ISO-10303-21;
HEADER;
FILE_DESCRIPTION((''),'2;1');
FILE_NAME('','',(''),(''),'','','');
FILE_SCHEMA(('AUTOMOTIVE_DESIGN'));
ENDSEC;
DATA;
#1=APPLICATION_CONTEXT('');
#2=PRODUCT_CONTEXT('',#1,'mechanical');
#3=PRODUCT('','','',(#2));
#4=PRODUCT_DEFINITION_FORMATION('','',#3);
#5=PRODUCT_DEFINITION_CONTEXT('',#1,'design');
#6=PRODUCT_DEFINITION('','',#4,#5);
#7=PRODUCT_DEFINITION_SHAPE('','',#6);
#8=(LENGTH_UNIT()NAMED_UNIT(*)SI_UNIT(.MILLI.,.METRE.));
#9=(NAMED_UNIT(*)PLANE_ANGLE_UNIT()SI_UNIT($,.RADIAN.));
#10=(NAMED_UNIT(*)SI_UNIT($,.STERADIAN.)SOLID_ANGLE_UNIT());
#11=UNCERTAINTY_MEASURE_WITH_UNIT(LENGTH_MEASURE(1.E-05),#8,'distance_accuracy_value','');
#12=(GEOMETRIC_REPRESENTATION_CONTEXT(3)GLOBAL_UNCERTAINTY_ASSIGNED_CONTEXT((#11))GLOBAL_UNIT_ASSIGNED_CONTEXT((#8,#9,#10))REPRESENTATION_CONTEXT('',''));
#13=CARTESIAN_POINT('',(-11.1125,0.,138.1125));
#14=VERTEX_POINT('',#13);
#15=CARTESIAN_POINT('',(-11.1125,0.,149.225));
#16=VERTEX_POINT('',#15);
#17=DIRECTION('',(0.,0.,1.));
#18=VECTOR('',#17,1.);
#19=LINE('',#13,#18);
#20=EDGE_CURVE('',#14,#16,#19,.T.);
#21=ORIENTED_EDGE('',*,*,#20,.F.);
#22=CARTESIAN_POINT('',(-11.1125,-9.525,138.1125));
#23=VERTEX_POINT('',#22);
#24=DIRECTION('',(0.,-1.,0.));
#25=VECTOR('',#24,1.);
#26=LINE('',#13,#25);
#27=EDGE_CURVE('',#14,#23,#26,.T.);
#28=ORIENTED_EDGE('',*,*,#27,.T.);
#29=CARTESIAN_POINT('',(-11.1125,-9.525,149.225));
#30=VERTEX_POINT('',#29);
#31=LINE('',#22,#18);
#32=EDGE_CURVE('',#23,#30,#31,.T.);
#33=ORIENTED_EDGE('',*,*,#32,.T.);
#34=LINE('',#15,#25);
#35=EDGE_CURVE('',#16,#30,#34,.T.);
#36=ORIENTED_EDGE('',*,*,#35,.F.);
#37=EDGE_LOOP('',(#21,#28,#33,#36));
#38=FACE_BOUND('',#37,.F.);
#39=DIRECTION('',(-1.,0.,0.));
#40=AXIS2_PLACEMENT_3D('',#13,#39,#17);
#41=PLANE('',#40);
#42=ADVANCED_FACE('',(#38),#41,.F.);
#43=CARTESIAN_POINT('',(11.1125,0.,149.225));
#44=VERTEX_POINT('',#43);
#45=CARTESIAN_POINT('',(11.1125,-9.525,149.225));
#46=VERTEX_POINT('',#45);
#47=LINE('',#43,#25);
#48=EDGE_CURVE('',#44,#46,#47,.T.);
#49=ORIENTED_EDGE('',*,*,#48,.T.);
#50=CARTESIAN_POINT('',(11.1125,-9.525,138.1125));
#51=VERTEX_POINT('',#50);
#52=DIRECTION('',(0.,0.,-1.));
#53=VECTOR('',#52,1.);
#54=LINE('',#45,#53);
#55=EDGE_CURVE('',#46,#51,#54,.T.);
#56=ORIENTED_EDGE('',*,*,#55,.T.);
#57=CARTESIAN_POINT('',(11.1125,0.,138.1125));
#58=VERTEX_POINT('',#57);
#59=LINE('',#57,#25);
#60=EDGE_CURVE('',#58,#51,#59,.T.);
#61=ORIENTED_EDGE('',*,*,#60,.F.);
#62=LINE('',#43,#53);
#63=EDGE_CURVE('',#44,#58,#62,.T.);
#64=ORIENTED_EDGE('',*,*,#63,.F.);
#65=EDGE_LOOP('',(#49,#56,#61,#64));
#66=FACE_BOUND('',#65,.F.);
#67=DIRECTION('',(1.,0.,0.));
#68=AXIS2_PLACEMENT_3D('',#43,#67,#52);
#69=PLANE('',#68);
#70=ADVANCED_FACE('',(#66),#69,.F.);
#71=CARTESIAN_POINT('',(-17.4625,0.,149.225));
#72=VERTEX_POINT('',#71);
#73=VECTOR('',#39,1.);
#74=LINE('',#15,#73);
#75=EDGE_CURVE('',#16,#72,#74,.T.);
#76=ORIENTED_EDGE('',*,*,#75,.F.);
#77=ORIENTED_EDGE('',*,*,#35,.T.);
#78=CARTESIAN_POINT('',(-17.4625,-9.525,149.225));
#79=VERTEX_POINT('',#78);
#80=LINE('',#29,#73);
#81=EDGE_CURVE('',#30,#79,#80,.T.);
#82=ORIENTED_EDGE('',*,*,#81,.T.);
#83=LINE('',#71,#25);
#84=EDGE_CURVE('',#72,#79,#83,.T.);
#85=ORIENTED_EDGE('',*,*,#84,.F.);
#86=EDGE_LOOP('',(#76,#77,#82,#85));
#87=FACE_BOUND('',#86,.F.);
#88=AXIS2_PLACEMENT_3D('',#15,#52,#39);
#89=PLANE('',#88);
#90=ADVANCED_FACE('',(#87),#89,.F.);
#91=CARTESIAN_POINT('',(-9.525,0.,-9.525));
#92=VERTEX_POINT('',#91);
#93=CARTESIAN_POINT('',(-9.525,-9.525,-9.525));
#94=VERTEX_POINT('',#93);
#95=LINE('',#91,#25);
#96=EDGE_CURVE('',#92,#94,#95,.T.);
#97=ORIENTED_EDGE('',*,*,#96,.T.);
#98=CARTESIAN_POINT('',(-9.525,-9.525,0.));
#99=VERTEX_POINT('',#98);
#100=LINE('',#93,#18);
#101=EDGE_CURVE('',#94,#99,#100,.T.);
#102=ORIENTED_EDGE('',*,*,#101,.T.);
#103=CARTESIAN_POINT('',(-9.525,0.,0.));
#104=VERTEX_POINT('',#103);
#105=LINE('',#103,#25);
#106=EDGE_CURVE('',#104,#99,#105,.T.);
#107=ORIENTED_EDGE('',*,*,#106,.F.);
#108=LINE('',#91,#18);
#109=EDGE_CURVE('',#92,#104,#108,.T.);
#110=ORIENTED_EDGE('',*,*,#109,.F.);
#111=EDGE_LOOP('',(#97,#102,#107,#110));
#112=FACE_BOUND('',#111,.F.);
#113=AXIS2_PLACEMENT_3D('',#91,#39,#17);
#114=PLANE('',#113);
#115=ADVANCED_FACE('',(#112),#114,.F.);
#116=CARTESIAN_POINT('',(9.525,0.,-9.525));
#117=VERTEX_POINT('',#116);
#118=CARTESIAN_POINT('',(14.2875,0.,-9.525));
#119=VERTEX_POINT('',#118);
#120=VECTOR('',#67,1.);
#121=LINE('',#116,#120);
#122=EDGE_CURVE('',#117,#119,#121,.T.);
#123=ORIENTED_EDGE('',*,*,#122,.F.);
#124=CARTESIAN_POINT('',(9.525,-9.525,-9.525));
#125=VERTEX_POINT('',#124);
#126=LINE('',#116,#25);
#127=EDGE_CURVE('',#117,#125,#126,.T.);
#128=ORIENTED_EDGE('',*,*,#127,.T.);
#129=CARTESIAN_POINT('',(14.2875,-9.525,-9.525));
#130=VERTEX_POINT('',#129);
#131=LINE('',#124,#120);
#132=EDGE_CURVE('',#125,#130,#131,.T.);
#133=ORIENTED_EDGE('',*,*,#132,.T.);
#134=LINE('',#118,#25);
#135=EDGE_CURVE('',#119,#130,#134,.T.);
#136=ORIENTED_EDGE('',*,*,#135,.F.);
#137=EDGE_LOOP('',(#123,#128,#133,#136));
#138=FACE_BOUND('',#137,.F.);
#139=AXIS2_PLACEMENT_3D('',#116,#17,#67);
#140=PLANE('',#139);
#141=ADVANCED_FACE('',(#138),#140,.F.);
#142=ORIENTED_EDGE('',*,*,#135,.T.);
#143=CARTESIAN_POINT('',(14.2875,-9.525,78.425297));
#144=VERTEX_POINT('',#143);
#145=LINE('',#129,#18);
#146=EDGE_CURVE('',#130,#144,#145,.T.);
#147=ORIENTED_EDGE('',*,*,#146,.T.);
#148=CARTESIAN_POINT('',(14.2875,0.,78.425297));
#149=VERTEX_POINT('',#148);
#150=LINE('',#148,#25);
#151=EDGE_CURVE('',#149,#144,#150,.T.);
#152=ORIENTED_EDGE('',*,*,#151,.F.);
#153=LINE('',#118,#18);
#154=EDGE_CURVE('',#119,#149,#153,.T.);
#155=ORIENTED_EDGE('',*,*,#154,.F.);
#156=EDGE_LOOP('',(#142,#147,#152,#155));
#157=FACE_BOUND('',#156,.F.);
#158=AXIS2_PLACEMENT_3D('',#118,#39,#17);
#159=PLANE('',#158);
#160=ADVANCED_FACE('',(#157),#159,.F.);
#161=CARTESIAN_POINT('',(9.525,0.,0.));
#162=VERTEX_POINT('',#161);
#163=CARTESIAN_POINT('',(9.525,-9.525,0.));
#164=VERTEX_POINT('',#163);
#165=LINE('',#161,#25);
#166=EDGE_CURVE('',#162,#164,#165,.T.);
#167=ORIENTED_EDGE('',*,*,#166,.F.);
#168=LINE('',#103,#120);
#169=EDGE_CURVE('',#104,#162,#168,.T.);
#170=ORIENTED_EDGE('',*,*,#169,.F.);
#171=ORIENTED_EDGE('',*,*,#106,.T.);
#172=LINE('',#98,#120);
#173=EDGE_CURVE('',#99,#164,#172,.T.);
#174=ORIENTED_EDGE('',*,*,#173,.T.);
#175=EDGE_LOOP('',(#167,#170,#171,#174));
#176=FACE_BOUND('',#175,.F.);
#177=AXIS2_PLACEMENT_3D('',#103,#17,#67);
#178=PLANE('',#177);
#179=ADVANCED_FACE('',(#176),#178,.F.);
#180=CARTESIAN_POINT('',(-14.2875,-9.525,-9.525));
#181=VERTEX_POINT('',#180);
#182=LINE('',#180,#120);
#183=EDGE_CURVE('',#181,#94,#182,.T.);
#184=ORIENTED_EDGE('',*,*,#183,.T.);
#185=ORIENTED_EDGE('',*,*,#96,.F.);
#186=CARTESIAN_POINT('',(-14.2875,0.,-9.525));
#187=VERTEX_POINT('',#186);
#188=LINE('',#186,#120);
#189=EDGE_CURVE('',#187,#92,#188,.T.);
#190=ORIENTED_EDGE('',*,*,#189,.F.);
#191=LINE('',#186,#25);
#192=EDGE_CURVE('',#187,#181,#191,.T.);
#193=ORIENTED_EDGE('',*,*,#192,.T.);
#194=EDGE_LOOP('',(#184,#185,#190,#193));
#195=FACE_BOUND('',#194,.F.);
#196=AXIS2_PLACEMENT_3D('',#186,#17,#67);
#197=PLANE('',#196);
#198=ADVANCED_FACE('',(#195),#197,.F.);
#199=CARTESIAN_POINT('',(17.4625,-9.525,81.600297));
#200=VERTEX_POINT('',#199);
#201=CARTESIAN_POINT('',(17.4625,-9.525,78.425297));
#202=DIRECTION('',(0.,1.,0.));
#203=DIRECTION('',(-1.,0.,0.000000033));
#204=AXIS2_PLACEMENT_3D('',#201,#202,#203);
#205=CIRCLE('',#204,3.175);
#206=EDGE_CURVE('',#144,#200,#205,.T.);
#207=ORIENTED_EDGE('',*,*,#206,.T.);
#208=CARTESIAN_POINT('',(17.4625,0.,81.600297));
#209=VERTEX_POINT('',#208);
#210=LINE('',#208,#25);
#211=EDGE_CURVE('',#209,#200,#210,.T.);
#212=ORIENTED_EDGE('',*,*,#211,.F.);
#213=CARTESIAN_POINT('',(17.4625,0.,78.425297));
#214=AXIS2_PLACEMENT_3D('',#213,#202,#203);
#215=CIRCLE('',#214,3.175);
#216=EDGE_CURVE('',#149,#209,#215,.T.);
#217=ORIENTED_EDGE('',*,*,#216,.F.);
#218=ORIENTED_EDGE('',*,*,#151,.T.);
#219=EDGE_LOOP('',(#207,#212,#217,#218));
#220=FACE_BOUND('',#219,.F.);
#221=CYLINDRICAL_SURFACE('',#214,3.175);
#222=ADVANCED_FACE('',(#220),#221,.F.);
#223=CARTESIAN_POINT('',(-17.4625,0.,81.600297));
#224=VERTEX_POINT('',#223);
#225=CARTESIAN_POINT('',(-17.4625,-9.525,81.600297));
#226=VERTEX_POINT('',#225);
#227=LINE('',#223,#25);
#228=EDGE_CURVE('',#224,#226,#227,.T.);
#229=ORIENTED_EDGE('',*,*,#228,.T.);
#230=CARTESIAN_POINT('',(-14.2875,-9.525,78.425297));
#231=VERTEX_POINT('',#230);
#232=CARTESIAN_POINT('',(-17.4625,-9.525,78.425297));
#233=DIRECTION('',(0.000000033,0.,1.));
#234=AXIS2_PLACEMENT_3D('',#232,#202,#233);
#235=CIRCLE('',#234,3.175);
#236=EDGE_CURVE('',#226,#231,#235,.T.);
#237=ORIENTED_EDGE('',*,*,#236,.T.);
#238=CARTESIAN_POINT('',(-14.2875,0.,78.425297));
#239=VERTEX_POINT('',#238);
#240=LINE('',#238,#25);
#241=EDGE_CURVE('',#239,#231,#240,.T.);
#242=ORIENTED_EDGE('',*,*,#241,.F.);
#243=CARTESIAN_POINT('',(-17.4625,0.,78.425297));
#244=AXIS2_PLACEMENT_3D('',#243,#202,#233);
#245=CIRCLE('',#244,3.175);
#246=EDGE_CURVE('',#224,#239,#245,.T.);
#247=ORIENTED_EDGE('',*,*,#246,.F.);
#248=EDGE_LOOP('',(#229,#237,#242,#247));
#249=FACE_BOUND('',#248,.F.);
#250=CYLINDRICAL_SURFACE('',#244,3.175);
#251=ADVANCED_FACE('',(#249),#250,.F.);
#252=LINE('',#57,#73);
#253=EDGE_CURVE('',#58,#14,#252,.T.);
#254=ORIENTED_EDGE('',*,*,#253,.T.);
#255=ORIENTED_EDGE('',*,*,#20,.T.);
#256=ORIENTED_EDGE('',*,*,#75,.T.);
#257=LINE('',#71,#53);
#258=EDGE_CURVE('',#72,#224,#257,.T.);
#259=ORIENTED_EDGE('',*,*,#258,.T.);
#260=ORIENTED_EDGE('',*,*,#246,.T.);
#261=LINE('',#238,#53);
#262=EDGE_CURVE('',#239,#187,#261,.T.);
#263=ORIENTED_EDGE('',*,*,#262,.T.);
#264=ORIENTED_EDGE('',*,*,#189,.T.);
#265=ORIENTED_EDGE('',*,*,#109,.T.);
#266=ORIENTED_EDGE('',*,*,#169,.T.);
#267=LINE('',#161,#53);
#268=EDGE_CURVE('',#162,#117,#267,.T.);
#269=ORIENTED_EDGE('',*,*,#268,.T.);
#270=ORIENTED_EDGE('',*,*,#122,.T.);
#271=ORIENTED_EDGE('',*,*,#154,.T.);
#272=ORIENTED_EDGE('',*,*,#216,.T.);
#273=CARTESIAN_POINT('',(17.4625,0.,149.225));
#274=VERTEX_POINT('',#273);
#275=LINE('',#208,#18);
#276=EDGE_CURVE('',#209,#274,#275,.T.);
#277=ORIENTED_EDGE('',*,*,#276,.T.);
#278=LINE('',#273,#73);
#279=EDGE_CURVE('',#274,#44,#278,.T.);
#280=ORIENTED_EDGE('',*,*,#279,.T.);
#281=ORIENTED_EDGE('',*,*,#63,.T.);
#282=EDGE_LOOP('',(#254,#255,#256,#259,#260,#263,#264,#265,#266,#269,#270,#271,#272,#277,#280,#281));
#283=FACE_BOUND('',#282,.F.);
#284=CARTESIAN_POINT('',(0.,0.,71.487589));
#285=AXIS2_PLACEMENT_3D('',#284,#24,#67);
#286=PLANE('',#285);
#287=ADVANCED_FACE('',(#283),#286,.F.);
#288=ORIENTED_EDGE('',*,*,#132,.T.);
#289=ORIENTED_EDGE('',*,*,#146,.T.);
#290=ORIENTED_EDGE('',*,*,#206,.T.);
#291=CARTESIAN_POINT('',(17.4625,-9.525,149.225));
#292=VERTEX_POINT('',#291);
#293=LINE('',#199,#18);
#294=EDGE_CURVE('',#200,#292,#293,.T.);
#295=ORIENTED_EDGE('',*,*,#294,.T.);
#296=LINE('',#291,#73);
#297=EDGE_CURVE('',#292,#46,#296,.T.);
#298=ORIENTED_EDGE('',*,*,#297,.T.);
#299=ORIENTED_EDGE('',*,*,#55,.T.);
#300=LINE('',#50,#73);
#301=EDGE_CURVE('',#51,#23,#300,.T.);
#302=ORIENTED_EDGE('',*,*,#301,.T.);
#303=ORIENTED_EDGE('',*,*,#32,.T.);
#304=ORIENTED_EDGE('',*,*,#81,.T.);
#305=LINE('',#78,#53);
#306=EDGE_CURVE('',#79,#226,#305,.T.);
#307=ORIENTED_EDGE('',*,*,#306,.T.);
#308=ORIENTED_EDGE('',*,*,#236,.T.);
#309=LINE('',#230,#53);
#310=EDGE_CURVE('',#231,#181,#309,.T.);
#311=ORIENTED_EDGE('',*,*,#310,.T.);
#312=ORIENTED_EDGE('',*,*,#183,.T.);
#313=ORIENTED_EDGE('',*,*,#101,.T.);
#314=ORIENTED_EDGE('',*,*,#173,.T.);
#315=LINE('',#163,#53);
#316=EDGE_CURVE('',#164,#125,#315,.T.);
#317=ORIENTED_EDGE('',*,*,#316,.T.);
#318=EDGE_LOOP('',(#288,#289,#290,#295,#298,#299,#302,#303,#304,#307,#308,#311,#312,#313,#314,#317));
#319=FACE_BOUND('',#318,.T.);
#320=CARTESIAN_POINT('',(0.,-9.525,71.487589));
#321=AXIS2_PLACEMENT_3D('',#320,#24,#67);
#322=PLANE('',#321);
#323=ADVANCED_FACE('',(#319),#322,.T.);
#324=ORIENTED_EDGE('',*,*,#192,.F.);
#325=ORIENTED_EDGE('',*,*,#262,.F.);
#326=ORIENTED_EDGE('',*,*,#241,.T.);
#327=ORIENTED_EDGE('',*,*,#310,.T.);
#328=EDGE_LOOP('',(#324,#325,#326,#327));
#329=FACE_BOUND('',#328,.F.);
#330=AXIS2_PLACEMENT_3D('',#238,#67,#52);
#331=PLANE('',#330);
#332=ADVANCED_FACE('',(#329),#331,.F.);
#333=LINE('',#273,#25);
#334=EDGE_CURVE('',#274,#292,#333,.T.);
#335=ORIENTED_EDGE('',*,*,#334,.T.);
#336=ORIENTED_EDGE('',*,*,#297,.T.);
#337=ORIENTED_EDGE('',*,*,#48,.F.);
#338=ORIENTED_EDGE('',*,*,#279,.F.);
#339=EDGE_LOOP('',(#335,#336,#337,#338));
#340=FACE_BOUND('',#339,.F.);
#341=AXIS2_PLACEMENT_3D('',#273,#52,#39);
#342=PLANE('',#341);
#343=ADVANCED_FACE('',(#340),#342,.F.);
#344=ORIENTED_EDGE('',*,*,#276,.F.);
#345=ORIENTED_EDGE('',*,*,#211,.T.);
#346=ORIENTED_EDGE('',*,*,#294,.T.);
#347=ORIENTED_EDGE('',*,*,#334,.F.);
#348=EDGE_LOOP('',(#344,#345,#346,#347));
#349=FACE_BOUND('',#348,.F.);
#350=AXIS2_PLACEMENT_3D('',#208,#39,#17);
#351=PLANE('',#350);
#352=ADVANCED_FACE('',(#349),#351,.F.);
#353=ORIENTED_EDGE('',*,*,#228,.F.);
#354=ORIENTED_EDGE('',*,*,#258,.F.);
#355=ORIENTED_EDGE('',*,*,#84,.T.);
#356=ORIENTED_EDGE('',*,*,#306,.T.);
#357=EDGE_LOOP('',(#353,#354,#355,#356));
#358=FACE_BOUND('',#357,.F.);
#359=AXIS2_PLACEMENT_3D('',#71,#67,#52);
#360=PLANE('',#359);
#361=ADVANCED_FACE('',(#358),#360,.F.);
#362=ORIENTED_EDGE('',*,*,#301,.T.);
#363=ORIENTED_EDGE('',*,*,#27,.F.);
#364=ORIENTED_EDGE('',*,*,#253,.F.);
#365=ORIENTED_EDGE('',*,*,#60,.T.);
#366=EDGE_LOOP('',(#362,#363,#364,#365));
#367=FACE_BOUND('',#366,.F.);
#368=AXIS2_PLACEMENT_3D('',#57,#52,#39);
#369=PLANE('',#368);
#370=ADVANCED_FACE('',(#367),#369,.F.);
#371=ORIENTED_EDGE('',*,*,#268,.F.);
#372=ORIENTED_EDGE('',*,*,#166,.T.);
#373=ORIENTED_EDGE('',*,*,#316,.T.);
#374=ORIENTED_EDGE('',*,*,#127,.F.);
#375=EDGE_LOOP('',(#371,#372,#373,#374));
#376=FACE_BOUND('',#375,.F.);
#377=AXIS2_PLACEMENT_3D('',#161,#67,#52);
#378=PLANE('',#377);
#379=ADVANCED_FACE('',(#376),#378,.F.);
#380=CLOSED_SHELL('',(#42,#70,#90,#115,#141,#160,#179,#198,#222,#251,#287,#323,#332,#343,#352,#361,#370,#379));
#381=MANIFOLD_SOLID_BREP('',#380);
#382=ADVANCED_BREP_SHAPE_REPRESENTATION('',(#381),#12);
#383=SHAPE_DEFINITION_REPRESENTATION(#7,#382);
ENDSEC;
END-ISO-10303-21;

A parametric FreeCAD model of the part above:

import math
import FreeCAD as App
import Part
import Sketcher

V = App.Vector
Q = App.Units.Quantity

doc = App.newDocument("Part")
body = doc.addObject("PartDesign::Body", "Body")

sketch1 = body.newObject("Sketcher::SketchObject", "Sketch")
sketch1.AttachmentSupport = (doc.getObject("XZ_Plane"), [""])
sketch1.MapMode = "FlatFace"
sketch1.addGeometry([
    Part.LineSegment(V(-9.5, 0, 0), V(9.5, 0, 0)),
    Part.LineSegment(V(9.5, 0, 0), V(9.5, -9.5, 0)),
    Part.LineSegment(V(9.5, -9.5, 0), V(14.3, -9.5, 0)),
    Part.LineSegment(V(14.3, -9.5, 0), V(14.3, 78.4, 0)),
    Part.ArcOfCircle(Part.Circle(V(17.5, 78.4, 0), V(0, 0, 1), 3.2), math.radians(90), math.radians(180)),
    Part.LineSegment(V(17.5, 81.6, 0), V(17.5, 149.2, 0)),
    Part.LineSegment(V(17.5, 149.2, 0), V(11.1, 149.2, 0)),
    Part.LineSegment(V(11.1, 149.2, 0), V(11.1, 138.1, 0)),
    Part.LineSegment(V(11.1, 138.1, 0), V(-11.1, 138.1, 0)),
    Part.LineSegment(V(-11.1, 138.1, 0), V(-11.1, 149.2, 0)),
    Part.LineSegment(V(-11.1, 149.2, 0), V(-17.5, 149.2, 0)),
    Part.LineSegment(V(-17.5, 149.2, 0), V(-17.5, 81.6, 0)),
    Part.ArcOfCircle(Part.Circle(V(-17.5, 78.4, 0), V(0, 0, 1), 3.2), math.radians(0), math.radians(90)),
    Part.LineSegment(V(-14.3, 78.4, 0), V(-14.3, -9.5, 0)),
    Part.LineSegment(V(-14.3, -9.5, 0), V(-9.5, -9.5, 0)),
    Part.LineSegment(V(-9.5, -9.5, 0), V(-9.5, 0, 0)),
], False)
sketch1.addConstraint([
    Sketcher.Constraint("Coincident", 0, 2, 1, 1),
    Sketcher.Constraint("Coincident", 1, 2, 2, 1),
    Sketcher.Constraint("Coincident", 2, 2, 3, 1),
    Sketcher.Constraint("Tangent", 3, 2, 4, 2),
    Sketcher.Constraint("Coincident", 4, 1, 5, 1),
    Sketcher.Constraint("Coincident", 5, 2, 6, 1),
    Sketcher.Constraint("Coincident", 6, 2, 7, 1),
    Sketcher.Constraint("Coincident", 7, 2, 8, 1),
    Sketcher.Constraint("Coincident", 8, 2, 9, 1),
    Sketcher.Constraint("Coincident", 9, 2, 10, 1),
    Sketcher.Constraint("Coincident", 10, 2, 11, 1),
    Sketcher.Constraint("Coincident", 11, 2, 12, 2),
    Sketcher.Constraint("Tangent", 12, 1, 13, 1),
    Sketcher.Constraint("Coincident", 13, 2, 14, 1),
    Sketcher.Constraint("Coincident", 14, 2, 15, 1),
    Sketcher.Constraint("Coincident", 15, 2, 0, 1),
    Sketcher.Constraint("Horizontal", 0),
    Sketcher.Constraint("Vertical", 1),
    Sketcher.Constraint("Horizontal", 2),
    Sketcher.Constraint("Vertical", 3),
    Sketcher.Constraint("Vertical", 5),
    Sketcher.Constraint("Horizontal", 6),
    Sketcher.Constraint("Vertical", 7),
    Sketcher.Constraint("Horizontal", 8),
    Sketcher.Constraint("Vertical", 9),
    Sketcher.Constraint("Horizontal", 10),
    Sketcher.Constraint("Vertical", 11),
    Sketcher.Constraint("Vertical", 13),
    Sketcher.Constraint("Horizontal", 14),
    Sketcher.Constraint("Vertical", 15),
    Sketcher.Constraint("Equal", 4, 12),
    Sketcher.Constraint("Symmetric", 0, 2, 15, 2, -1, 1),
    Sketcher.Constraint("Symmetric", 4, 3, 12, 3, -2),
    Sketcher.Constraint("Symmetric", 6, 2, 9, 2, -2),
    Sketcher.Constraint("Horizontal", 2, 2, 13, 2),
    Sketcher.Constraint("Vertical", 12, 3, 10, 2),
    Sketcher.Constraint("Equal", 6, 10),
    Sketcher.Constraint("Radius", 4, Q("0.125 in")),
    Sketcher.Constraint("DistanceX", 0, 1, 0, 2, Q("0.75 in")),
    Sketcher.Constraint("DistanceX", 6, 2, 6, 1, Q("0.25 in")),
    Sketcher.Constraint("DistanceX", 2, 1, 2, 2, Q("0.1875 in")),
    Sketcher.Constraint("DistanceY", 1, 2, 1, 1, Q("0.375 in")),
    Sketcher.Constraint("DistanceY", 7, 2, 7, 1, Q("0.4375 in")),
    Sketcher.Constraint("DistanceY", -1, 1, 5, 2, Q("5.875 in")),
    Sketcher.Constraint("DistanceY", 3, 1, 3, 2, 87.950297),
])
pad1 = body.newObject("PartDesign::Pad", "Pad")
pad1.Profile = sketch1
pad1.Length = Q("0.375 in")

doc.recompute()
